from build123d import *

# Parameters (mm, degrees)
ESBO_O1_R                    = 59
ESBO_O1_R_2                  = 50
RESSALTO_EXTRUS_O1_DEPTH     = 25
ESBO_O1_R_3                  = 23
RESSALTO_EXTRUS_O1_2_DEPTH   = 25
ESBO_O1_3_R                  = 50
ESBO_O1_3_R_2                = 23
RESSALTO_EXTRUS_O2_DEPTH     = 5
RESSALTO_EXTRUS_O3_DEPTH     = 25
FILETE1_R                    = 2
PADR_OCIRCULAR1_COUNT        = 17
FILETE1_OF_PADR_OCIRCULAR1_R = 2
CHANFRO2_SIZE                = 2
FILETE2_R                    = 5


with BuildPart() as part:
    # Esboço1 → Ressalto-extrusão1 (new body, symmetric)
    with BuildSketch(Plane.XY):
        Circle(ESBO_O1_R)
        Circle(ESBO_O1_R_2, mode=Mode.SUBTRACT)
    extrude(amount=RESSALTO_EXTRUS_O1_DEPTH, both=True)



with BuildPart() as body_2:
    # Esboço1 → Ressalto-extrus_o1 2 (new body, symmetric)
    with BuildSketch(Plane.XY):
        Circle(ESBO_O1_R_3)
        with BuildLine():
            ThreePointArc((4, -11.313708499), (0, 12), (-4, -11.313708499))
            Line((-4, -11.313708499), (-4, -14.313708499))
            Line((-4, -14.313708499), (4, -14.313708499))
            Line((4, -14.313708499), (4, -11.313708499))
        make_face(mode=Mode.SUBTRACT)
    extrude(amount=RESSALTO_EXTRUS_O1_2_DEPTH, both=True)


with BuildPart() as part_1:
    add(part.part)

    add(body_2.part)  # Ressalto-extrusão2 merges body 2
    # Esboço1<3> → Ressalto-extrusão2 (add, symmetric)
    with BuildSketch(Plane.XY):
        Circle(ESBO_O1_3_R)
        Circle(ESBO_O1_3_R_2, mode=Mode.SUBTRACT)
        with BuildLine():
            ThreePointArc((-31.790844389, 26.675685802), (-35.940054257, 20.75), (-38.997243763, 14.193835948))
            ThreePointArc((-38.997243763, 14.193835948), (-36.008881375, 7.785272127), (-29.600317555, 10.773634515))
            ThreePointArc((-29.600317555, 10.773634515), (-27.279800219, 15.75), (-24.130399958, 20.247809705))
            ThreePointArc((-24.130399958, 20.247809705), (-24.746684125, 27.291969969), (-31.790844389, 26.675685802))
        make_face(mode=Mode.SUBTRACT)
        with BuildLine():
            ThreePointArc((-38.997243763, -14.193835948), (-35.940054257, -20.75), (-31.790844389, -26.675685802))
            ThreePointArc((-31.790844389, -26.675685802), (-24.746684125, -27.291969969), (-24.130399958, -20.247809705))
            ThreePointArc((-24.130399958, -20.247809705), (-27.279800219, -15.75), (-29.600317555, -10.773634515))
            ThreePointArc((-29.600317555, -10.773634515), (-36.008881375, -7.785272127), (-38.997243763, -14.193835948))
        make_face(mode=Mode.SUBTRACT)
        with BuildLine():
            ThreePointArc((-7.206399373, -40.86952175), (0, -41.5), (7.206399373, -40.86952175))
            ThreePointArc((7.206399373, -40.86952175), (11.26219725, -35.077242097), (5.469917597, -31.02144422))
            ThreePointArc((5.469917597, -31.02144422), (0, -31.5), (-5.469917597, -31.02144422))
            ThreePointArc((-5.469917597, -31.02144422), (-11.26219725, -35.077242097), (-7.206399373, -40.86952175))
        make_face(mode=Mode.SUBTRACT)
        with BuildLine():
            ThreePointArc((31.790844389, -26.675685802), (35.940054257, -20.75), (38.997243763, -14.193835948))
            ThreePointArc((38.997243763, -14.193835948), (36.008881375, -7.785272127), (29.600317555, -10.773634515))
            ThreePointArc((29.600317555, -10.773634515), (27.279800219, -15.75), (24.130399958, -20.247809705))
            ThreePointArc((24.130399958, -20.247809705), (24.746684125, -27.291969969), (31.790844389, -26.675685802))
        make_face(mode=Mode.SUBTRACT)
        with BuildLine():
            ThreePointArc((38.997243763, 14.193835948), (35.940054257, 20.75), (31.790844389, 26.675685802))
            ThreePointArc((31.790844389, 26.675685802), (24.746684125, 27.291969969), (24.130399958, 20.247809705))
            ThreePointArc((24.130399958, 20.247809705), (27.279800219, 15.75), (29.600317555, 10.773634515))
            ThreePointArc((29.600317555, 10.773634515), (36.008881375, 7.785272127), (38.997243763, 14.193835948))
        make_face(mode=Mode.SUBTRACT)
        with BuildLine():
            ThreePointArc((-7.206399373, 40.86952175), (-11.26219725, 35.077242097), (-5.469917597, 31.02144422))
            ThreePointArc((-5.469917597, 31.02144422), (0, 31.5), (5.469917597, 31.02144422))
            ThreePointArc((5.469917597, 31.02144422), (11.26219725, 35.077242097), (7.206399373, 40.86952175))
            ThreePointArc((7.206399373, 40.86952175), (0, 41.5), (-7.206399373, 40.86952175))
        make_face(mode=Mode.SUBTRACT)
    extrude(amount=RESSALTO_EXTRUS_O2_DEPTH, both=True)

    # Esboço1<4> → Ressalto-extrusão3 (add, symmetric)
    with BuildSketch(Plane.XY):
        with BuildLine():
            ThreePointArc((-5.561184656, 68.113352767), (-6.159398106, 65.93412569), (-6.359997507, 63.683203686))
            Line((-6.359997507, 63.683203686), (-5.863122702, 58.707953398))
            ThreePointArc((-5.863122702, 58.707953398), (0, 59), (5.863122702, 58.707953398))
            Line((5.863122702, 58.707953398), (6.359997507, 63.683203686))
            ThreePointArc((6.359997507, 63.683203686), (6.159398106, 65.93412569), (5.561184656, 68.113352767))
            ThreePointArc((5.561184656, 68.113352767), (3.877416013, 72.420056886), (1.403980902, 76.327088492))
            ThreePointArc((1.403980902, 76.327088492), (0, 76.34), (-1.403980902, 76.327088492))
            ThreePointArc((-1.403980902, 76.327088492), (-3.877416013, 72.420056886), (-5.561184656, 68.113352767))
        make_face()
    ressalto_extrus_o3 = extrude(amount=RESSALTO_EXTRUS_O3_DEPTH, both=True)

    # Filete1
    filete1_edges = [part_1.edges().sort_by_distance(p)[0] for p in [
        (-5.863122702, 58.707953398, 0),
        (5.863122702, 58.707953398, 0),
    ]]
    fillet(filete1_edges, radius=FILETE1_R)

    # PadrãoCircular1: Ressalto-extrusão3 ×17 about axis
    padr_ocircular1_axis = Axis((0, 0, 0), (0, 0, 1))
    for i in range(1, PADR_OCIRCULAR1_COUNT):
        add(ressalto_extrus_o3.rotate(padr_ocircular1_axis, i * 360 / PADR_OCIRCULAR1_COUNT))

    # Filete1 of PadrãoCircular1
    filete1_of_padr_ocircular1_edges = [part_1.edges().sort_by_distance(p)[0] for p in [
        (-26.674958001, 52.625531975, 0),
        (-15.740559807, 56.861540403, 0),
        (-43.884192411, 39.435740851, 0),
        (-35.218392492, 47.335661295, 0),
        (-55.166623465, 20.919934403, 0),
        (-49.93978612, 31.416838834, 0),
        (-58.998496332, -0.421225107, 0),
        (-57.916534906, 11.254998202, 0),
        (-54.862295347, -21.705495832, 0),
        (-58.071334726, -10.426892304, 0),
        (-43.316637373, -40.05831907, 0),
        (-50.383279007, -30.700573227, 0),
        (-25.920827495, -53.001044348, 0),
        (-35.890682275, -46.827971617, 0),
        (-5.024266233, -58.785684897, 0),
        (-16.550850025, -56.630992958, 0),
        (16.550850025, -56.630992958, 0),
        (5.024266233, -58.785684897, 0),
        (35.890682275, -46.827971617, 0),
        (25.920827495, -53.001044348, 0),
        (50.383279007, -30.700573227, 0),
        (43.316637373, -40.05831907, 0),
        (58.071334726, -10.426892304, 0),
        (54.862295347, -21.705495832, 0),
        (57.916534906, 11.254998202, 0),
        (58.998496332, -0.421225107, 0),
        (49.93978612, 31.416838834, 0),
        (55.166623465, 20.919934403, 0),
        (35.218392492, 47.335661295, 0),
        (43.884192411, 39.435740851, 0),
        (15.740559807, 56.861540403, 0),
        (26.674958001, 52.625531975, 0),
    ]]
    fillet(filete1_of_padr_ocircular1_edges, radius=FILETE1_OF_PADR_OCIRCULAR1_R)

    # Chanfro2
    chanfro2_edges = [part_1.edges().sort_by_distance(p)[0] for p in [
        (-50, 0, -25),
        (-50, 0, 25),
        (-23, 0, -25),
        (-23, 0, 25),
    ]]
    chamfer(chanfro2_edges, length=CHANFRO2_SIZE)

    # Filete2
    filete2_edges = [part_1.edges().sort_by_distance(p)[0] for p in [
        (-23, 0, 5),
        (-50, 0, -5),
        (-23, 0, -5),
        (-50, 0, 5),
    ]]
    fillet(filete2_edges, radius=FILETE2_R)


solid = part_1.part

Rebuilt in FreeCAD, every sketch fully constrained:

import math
import FreeCAD as App
import Part
import Sketcher
from FreeCAD import Vector
Q = App.Units.Quantity


def edges_at(feature, points):
    """Names of the edges that pass closest to the given points."""
    edges = feature.Shape.Edges
    near = lambda p: min(range(len(edges)), key=lambda i: edges[i].distToShape(Part.Vertex(*p))[0])
    return sorted({f"Edge{near(p) + 1}" for p in points})

doc = App.newDocument("Part")
params = doc.addObject("Spreadsheet::Sheet", "Params")
for row, (alias, value) in enumerate([
    ("sketch1_diameter", "118 mm"),
    ("sketch1_diameter2", "100 mm"),
    ("pad1_length", "50 mm"),
    ("sketch2_diameter", "46 mm"),
    ("sketch2_radius", "12 mm"),
    ("sketch2_width", "8 mm"),
    ("sketch2_height", "3 mm"),
    ("pad2_length", "50 mm"),
    ("sketch3_diameter", "100 mm"),
    ("sketch3_diameter2", "46 mm"),
    ("sketch3_radius", "5 mm"),
    ("sketch3_radius2", "41.5 mm"),
    ("pad3_length", "10 mm"),
    ("sketch4_radius", "59 mm"),
    ("sketch4_radius2", "12.64 mm"),
    ("sketch4_radius3", "24.16 mm"),
    ("sketch4_radius4", "76.340002 mm"),
    ("sketch4_length", "5 mm"),
    ("pad4_length", "50 mm"),
    ("fillet_radius", "2 mm"),
    ("fillet2_radius", "2 mm"),
    ("chamfer_size", "2 mm"),
    ("fillet3_radius", "5 mm"),
], start=1):
    params.set(f"A{row}", alias)
    params.set(f"B{row}", "=" + value)
    params.setAlias(f"B{row}", alias)

body = doc.addObject("PartDesign::Body", "Body")

sketch1 = doc.addObject("Sketcher::SketchObject", "Sketch")
body.addObject(sketch1)
sketch1.AttachmentSupport = (doc.XY_Plane, [""])
sketch1.MapMode = "FlatFace"
sketch1.addGeometry(Part.Circle(Vector(0, 0, 0), Vector(0, 0, 1), 59), False)
sketch1.addGeometry(Part.Circle(Vector(0, 0, 0), Vector(0, 0, 1), 50), False)
sketch1.addConstraint(Sketcher.Constraint("Coincident", 0, 3, -1, 1))
sketch1.addConstraint(Sketcher.Constraint("Coincident", 1, 3, -1, 1))
sketch1.addConstraint(Sketcher.Constraint("Diameter", 0, Q("118 mm")))
sketch1.addConstraint(Sketcher.Constraint("Diameter", 1, Q("100 mm")))
sketch1.setExpression("Constraints[2]", "Params.sketch1_diameter")
sketch1.setExpression("Constraints[3]", "Params.sketch1_diameter2")
pad1 = doc.addObject("PartDesign::Pad", "Pad")
body.addObject(pad1)
pad1.Profile = sketch1
pad1.setExpression("Length", "Params.pad1_length")
pad1.Midplane = True
body2 = doc.addObject("PartDesign::Body", "Body001")

sketch2 = doc.addObject("Sketcher::SketchObject", "Sketch001")
body2.addObject(sketch2)
sketch2.AttachmentSupport = (doc.getObject("XY_Plane001"), [""])
sketch2.MapMode = "FlatFace"
sketch2.addGeometry(Part.Circle(Vector(0, 0, 0), Vector(0, 0, 1), 23), False)
sketch2.addGeometry(Part.ArcOfCircle(Part.Circle(Vector(0, 0, 0), Vector(0, 0, 1), 12), math.radians(-71), math.radians(251)), False)
sketch2.addGeometry(Part.LineSegment(Vector(4, -11.3, 0), Vector(4, -14.3, 0)), False)
sketch2.addGeometry(Part.LineSegment(Vector(4, -14.3, 0), Vector(-4, -14.3, 0)), False)
sketch2.addGeometry(Part.LineSegment(Vector(-4, -14.3, 0), Vector(-4, -11.3, 0)), False)
sketch2.addConstraint(Sketcher.Constraint("Coincident", 1, 1, 2, 1))
sketch2.addConstraint(Sketcher.Constraint("Coincident", 2, 2, 3, 1))
sketch2.addConstraint(Sketcher.Constraint("Coincident", 3, 2, 4, 1))
sketch2.addConstraint(Sketcher.Constraint("Coincident", 4, 2, 1, 2))
sketch2.addConstraint(Sketcher.Constraint("Vertical", 2))
sketch2.addConstraint(Sketcher.Constraint("Horizontal", 3))
sketch2.addConstraint(Sketcher.Constraint("Vertical", 4))
sketch2.addConstraint(Sketcher.Constraint("Coincident", 0, 3, -1, 1))
sketch2.addConstraint(Sketcher.Constraint("Coincident", 1, 3, -1, 1))
sketch2.addConstraint(Sketcher.Constraint("Horizontal", 1, 1, 4, 2))
sketch2.addConstraint(Sketcher.Constraint("Diameter", 0, Q("46 mm")))
sketch2.addConstraint(Sketcher.Constraint("Radius", 1, Q("12 mm")))
sketch2.addConstraint(Sketcher.Constraint("DistanceX", 3, 2, 3, 1, Q("8 mm")))
sketch2.addConstraint(Sketcher.Constraint("DistanceY", 2, 2, 2, 1, Q("3 mm")))
sketch2.setExpression("Constraints[10]", "Params.sketch2_diameter")
sketch2.setExpression("Constraints[11]", "Params.sketch2_radius")
sketch2.setExpression("Constraints[12]", "Params.sketch2_width")
sketch2.setExpression("Constraints[13]", "Params.sketch2_height")
pad2 = doc.addObject("PartDesign::Pad", "Pad001")
body2.addObject(pad2)
pad2.Profile = sketch2
pad2.setExpression("Length", "Params.pad2_length")
pad2.Midplane = True
body.AllowCompound = True
doc.recompute()

boolean = doc.addObject("PartDesign::Boolean", "Boolean")
body.addObject(boolean)
boolean.Type = "Fuse"
boolean.addObjects([body2])

sketch3 = doc.addObject("Sketcher::SketchObject", "Sketch002")
body.addObject(sketch3)
sketch3.AttachmentSupport = (doc.XY_Plane, [""])
sketch3.MapMode = "FlatFace"
sketch3.addGeometry(Part.Circle(Vector(0, 0, 0), Vector(0, 0, 1), 50), False)
sketch3.addGeometry(Part.ArcOfCircle(Part.Circle(Vector(0, 0, 0), Vector(0, 0, 1), 42), math.radians(-160), math.radians(-140)), False)
sketch3.addGeometry(Part.ArcOfCircle(Part.Circle(Vector(-34, -12, 0), Vector(0, 0, 1), 5), math.radians(20), math.radians(200)), False)
sketch3.addGeometry(Part.ArcOfCircle(Part.Circle(Vector(0, 0, 0), Vector(0, 0, 1), 32), math.radians(-160), math.radians(-140)), False)
sketch3.addGeometry(Part.ArcOfCircle(Part.Circle(Vector(-28, -23, 0), Vector(0, 0, 1), 5), math.radians(-140), math.radians(40)), False)
sketch3.addGeometry(Part.ArcOfCircle(Part.Circle(Vector(0, 0, 0), Vector(0, 0, 1), 41), math.radians(-100), math.radians(-80)), False)
sketch3.addGeometry(Part.ArcOfCircle(Part.Circle(Vector(-6, -36, 0), Vector(0, 0, 1), 5), math.radians(80), math.radians(260)), False)
sketch3.addGeometry(Part.ArcOfCircle(Part.Circle(Vector(0, 0, 0), Vector(0, 0, 1), 32), math.radians(-100), math.radians(-80)), False)
sketch3.addGeometry(Part.ArcOfCircle(Part.Circle(Vector(6, -36, 0), Vector(0, 0, 1), 5), math.radians(-80), math.radians(100)), False)
sketch3.addGeometry(Part.Circle(Vector(0, 0, 0), Vector(0, 0, 1), 23), False)
sketch3.addGeometry(Part.ArcOfCircle(Part.Circle(Vector(0, 0, 0), Vector(0, 0, 1), 42), math.radians(-40), math.radians(-20)), False)
sketch3.addGeometry(Part.ArcOfCircle(Part.Circle(Vector(28, -23, 0), Vector(0, 0, 1), 5), math.radians(140), math.radians(320)), False)
sketch3.addGeometry(Part.ArcOfCircle(Part.Circle(Vector(0, 0, 0), Vector(0, 0, 1), 32), math.radians(-40), math.radians(-20)), False)
sketch3.addGeometry(Part.ArcOfCircle(Part.Circle(Vector(34, -12, 0), Vector(0, 0, 1), 5), math.radians(-20), math.radians(160)), False)
sketch3.addGeometry(Part.ArcOfCircle(Part.Circle(Vector(0, 0, 0), Vector(0, 0, 1), 42), math.radians(140), math.radians(160)), False)
sketch3.addGeometry(Part.ArcOfCircle(Part.Circle(Vector(-28, 23, 0), Vector(0, 0, 1), 5), math.radians(-40), math.radians(140)), False)
sketch3.addGeometry(Part.ArcOfCircle(Part.Circle(Vector(0, 0, 0), Vector(0, 0, 1), 32), math.radians(140), math.radians(160)), False)
sketch3.addGeometry(Part.ArcOfCircle(Part.Circle(Vector(-34, 12, 0), Vector(0, 0, 1), 5), math.radians(160), math.radians(340)), False)
sketch3.addGeometry(Part.ArcOfCircle(Part.Circle(Vector(0, 0, 0), Vector(0, 0, 1), 42), math.radians(20), math.radians(40)), False)
sketch3.addGeometry(Part.ArcOfCircle(Part.Circle(Vector(34, 12, 0), Vector(0, 0, 1), 5), math.radians(-160), math.radians(20)), False)
sketch3.addGeometry(Part.ArcOfCircle(Part.Circle(Vector(0, 0, 0), Vector(0, 0, 1), 32), math.radians(20), math.radians(40)), False)
sketch3.addGeometry(Part.ArcOfCircle(Part.Circle(Vector(28, 23, 0), Vector(0, 0, 1), 5), math.radians(40), math.radians(220)), False)
sketch3.addGeometry(Part.ArcOfCircle(Part.Circle(Vector(-6, 36, 0), Vector(0, 0, 1), 5), math.radians(100), math.radians(280)), False)
sketch3.addGeometry(Part.ArcOfCircle(Part.Circle(Vector(0, 0, 0), Vector(0, 0, 1), 41), math.radians(80), math.radians(100)), False)
sketch3.addGeometry(Part.ArcOfCircle(Part.Circle(Vector(6, 36, 0), Vector(0, 0, 1), 5), math.radians(-100), math.radians(80)), False)
sketch3.addGeometry(Part.ArcOfCircle(Part.Circle(Vector(0, 0, 0), Vector(0, 0, 1), 32), math.radians(80), math.radians(100)), False)
sketch3.addConstraint(Sketcher.Constraint("Tangent", 1, 1, 2, 2))
sketch3.addConstraint(Sketcher.Constraint("Tangent", 2, 1, 3, 1))
sketch3.addConstraint(Sketcher.Constraint("Tangent", 3, 2, 4, 2))
sketch3.addConstraint(Sketcher.Constraint("Tangent", 4, 1, 1, 2))
sketch3.addConstraint(Sketcher.Constraint("Tangent", 5, 1, 6, 2))
sketch3.addConstraint(Sketcher.Constraint("Tangent", 6, 1, 7, 1))
sketch3.addConstraint(Sketcher.Constraint("Tangent", 7, 2, 8, 2))
sketch3.addConstraint(Sketcher.Constraint("Tangent", 8, 1, 5, 2))
sketch3.addConstraint(Sketcher.Constraint("Tangent", 10, 1, 11, 2))
sketch3.addConstraint(Sketcher.Constraint("Tangent", 11, 1, 12, 1))
sketch3.addConstraint(Sketcher.Constraint("Tangent", 12, 2, 13, 2))
sketch3.addConstraint(Sketcher.Constraint("Tangent", 13, 1, 10, 2))
sketch3.addConstraint(Sketcher.Constraint("Tangent", 14, 1, 15, 2))
sketch3.addConstraint(Sketcher.Constraint("Tangent", 15, 1, 16, 1))
sketch3.addConstraint(Sketcher.Constraint("Tangent", 16, 2, 17, 2))
sketch3.addConstraint(Sketcher.Constraint("Tangent", 17, 1, 14, 2))
sketch3.addConstraint(Sketcher.Constraint("Tangent", 18, 1, 19, 2))
sketch3.addConstraint(Sketcher.Constraint("Tangent", 19, 1, 20, 1))
sketch3.addConstraint(Sketcher.Constraint("Tangent", 20, 2, 21, 2))
sketch3.addConstraint(Sketcher.Constraint("Tangent", 21, 1, 18, 2))
sketch3.addConstraint(Sketcher.Constraint("Tangent", 22, 1, 23, 2))
sketch3.addConstraint(Sketcher.Constraint("Tangent", 23, 1, 24, 2))
sketch3.addConstraint(Sketcher.Constraint("Tangent", 24, 1, 25, 1))
sketch3.addConstraint(Sketcher.Constraint("Tangent", 25, 2, 22, 2))
sketch3.addConstraint(Sketcher.Constraint("Coincident", 0, 3, -1, 1))
sketch3.addConstraint(Sketcher.Constraint("Coincident", 1, 3, -1, 1))
sketch3.addConstraint(Sketcher.Constraint("Coincident", 3, 3, -1, 1))
sketch3.addConstraint(Sketcher.Constraint("Coincident", 5, 3, -1, 1))
sketch3.addConstraint(Sketcher.Constraint("Coincident", 7, 3, -1, 1))
sketch3.addConstraint(Sketcher.Constraint("Coincident", 9, 3, -1, 1))
sketch3.addConstraint(Sketcher.Constraint("Coincident", 10, 3, -1, 1))
sketch3.addConstraint(Sketcher.Constraint("Coincident", 12, 3, -1, 1))
sketch3.addConstraint(Sketcher.Constraint("Coincident", 14, 3, -1, 1))
sketch3.addConstraint(Sketcher.Constraint("Coincident", 16, 3, -1, 1))
sketch3.addConstraint(Sketcher.Constraint("Coincident", 18, 3, -1, 1))
sketch3.addConstraint(Sketcher.Constraint("Coincident", 20, 3, -1, 1))
sketch3.addConstraint(Sketcher.Constraint("Coincident", 23, 3, -1, 1))
sketch3.addConstraint(Sketcher.Constraint("Coincident", 25, 3, -1, 1))
sketch3.addConstraint(Sketcher.Constraint("Equal", 1, 5))
sketch3.addConstraint(Sketcher.Constraint("Equal", 4, 6))
sketch3.addConstraint(Sketcher.Constraint("Equal", 5, 10))
sketch3.addConstraint(Sketcher.Constraint("Equal", 8, 11))
sketch3.addConstraint(Sketcher.Constraint("Equal", 10, 14))
sketch3.addConstraint(Sketcher.Constraint("Equal", 13, 15))
sketch3.addConstraint(Sketcher.Constraint("Equal", 14, 18))
sketch3.addConstraint(Sketcher.Constraint("Equal", 17, 19))
sketch3.addConstraint(Sketcher.Constraint("Equal", 21, 22))
sketch3.addConstraint(Sketcher.Constraint("Equal", 18, 23))
sketch3.addConstraint(Sketcher.Constraint("Horizontal", 6, 3, 8, 3))
sketch3.addConstraint(Sketcher.Constraint("Horizontal", 4, 3, 11, 3))
sketch3.addConstraint(Sketcher.Constraint("Horizontal", 2, 3, 13, 3))
sketch3.addConstraint(Sketcher.Constraint("Horizontal", 17, 3, 19, 3))
sketch3.addConstraint(Sketcher.Constraint("Horizontal", 15, 3, 21, 3))
sketch3.addConstraint(Sketcher.Constraint("Horizontal", 22, 3, 24, 3))
sketch3.addConstraint(Sketcher.Constraint("Vertical", 4, 3, 15, 3))
sketch3.addConstraint(Sketcher.Constraint("Vertical", 2, 3, 17, 3))
sketch3.addConstraint(Sketcher.Constraint("Vertical", 6, 3, 22, 3))
sketch3.addConstraint(Sketcher.Constraint("Diameter", 0, Q("100 mm")))
sketch3.addConstraint(Sketcher.Constraint("Diameter", 9, Q("46 mm")))
sketch3.addConstraint(Sketcher.Constraint("Radius", 2, Q("5 mm")))
sketch3.addConstraint(Sketcher.Constraint("Radius", 1, Q("41.5 mm")))
sketch3.addConstraint(Sketcher.Constraint("DistanceX", 3, 2, 5, 1, Q("16.924001 mm")))
sketch3.addConstraint(Sketcher.Constraint("DistanceX", 3, 2, -1, 1, Q("24.1304 mm")))
sketch3.addConstraint(Sketcher.Constraint("DistanceY", 2, 3, 2, 1, Q("1.710101 mm")))
sketch3.setExpression("Constraints[57]", "Params.sketch3_diameter")
sketch3.setExpression("Constraints[58]", "Params.sketch3_diameter2")
sketch3.setExpression("Constraints[59]", "Params.sketch3_radius")
sketch3.setExpression("Constraints[60]", "Params.sketch3_radius2")
pad3 = doc.addObject("PartDesign::Pad", "Pad002")
body.addObject(pad3)
pad3.Profile = sketch3
pad3.setExpression("Length", "Params.pad3_length")
pad3.Midplane = True

sketch4 = doc.addObject("Sketcher::SketchObject", "Sketch003")
body.addObject(sketch4)
sketch4.AttachmentSupport = (doc.XY_Plane, [""])
sketch4.MapMode = "FlatFace"
sketch4.addGeometry(Part.ArcOfCircle(Part.Circle(Vector(6.3, 63.7, 0), Vector(0, 0, 1), 12.6), math.radians(160), math.radians(180)), False)
sketch4.addGeometry(Part.LineSegment(Vector(-6.4, 63.7, 0), Vector(-5.9, 58.7, 0)), False)
sketch4.addGeometry(Part.ArcOfCircle(Part.Circle(Vector(0, 0, 0), Vector(0, 0, 1), 59), math.radians(84.3), math.radians(95.7)), False)
sketch4.addGeometry(Part.LineSegment(Vector(5.9, 58.7, 0), Vector(6.4, 63.7, 0)), False)
sketch4.addGeometry(Part.ArcOfCircle(Part.Circle(Vector(-6.3, 63.7, 0), Vector(0, 0, 1), 12.6), math.radians(0), math.radians(20)), False)
sketch4.addGeometry(Part.ArcOfCircle(Part.Circle(Vector(-17.7, 61.5, 0), Vector(0, 0, 1), 24.2), math.radians(16), math.radians(38)), False)
sketch4.addGeometry(Part.ArcOfCircle(Part.Circle(Vector(0, 0, 0), Vector(0, 0, 1), 76.3), math.radians(88.95), math.radians(91.05)), False)
sketch4.addGeometry(Part.ArcOfCircle(Part.Circle(Vector(17.7, 61.5, 0), Vector(0, 0, 1), 24.2), math.radians(142), math.radians(164)), False)
sketch4.addConstraint(Sketcher.Constraint("Coincident", 0, 2, 1, 1))
sketch4.addConstraint(Sketcher.Constraint("Coincident", 1, 2, 2, 2))
sketch4.addConstraint(Sketcher.Constraint("Coincident", 2, 1, 3, 1))
sketch4.addConstraint(Sketcher.Constraint("Coincident", 3, 2, 4, 1))
sketch4.addConstraint(Sketcher.Constraint("Coincident", 4, 2, 5, 1))
sketch4.addConstraint(Sketcher.Constraint("Coincident", 5, 2, 6, 1))
sketch4.addConstraint(Sketcher.Constraint("Coincident", 6, 2, 7, 1))
sketch4.addConstraint(Sketcher.Constraint("Coincident", 7, 2, 0, 1))
sketch4.addConstraint(Sketcher.Constraint("Coincident", 2, 3, -1, 1))
sketch4.addConstraint(Sketcher.Constraint("Coincident", 6, 3, -1, 1))
sketch4.addConstraint(Sketcher.Constraint("Equal", 0, 4))
sketch4.addConstraint(Sketcher.Constraint("Equal", 5, 7))
sketch4.addConstraint(Sketcher.Constraint("Symmetric", 0, 3, 4, 3, -2))
sketch4.addConstraint(Sketcher.Constraint("Symmetric", 5, 3, 7, 3, -2))
sketch4.addConstraint(Sketcher.Constraint("Horizontal", 1, 2, 2, 1))
sketch4.addConstraint(Sketcher.Constraint("Horizontal", 0, 2, 3, 2))
sketch4.addConstraint(Sketcher.Constraint("Radius", 2, Q("59 mm")))
sketch4.addConstraint(Sketcher.Constraint("Radius", 0, Q("12.64 mm")))
sketch4.addConstraint(Sketcher.Constraint("Radius", 5, Q("24.16 mm")))
sketch4.addConstraint(Sketcher.Constraint("Radius", 6, Q("76.340002 mm")))
sketch4.addConstraint(Sketcher.Constraint("Distance", 1, Q("5 mm")))
sketch4.addConstraint(Sketcher.Constraint("DistanceX", -1, 1, 0, 3, Q("6.28 mm")))
sketch4.addConstraint(Sketcher.Constraint("DistanceY", 2, 1, 4, 2, Q("9.405399 mm")))
sketch4.addConstraint(Sketcher.Constraint("DistanceX", -1, 1, 5, 2, Q("1.403981 mm")))
sketch4.addConstraint(Sketcher.Constraint("DistanceY", 5, 3, 4, 3, Q("2.181318 mm")))
sketch4.addConstraint(Sketcher.Constraint("DistanceX", 5, 3, 7, 3, Q("35.357691 mm")))
sketch4.setExpression("Constraints[16]", "Params.sketch4_radius")
sketch4.setExpression("Constraints[17]", "Params.sketch4_radius2")
sketch4.setExpression("Constraints[18]", "Params.sketch4_radius3")
sketch4.setExpression("Constraints[19]", "Params.sketch4_radius4")
sketch4.setExpression("Constraints[20]", "Params.sketch4_length")
pad4 = doc.addObject("PartDesign::Pad", "Pad003")
body.addObject(pad4)
pad4.Profile = sketch4
pad4.setExpression("Length", "Params.pad4_length")
pad4.Midplane = True
doc.recompute()

fillet = doc.addObject("PartDesign::Fillet", "Fillet")
body.addObject(fillet)
fillet.Base = (pad4, edges_at(pad4, [(-5.863, 58.708, 0), (5.863, 58.708, 0)]))
fillet.setExpression("Radius", "Params.fillet_radius")
doc.recompute()

polarpattern = doc.addObject("PartDesign::PolarPattern", "PolarPattern")
body.addObject(polarpattern)
polarpattern.Originals = [pad4]
polarpattern.Axis = (doc.Z_Axis, [""])
polarpattern.Angle = 360
polarpattern.Occurrences = 17
body.Tip = polarpattern
doc.recompute()

fillet2 = doc.addObject("PartDesign::Fillet", "Fillet001")
body.addObject(fillet2)
fillet2.Base = (polarpattern, edges_at(polarpattern, [
    (-26.675, 52.626, 0),
    (-15.741, 56.862, 0),
    (-43.884, 39.436, 0),
    (-35.218, 47.336, 0),
    (-55.167, 20.92, 0),
    (-49.94, 31.417, 0),
    (-58.998, -0.421, 0),
    (-57.917, 11.255, 0),
    (-54.862, -21.705, 0),
    (-58.071, -10.427, 0),
    (-43.317, -40.058, 0),
    (-50.383, -30.701, 0),
    (-25.921, -53.001, 0),
    (-35.891, -46.828, 0),
    (-5.024, -58.786, 0),
    (-16.551, -56.631, 0),
    (16.551, -56.631, 0),
    (5.024, -58.786, 0),
    (35.891, -46.828, 0),
    (25.921, -53.001, 0),
    (50.383, -30.701, 0),
    (43.317, -40.058, 0),
    (58.071, -10.427, 0),
    (54.862, -21.705, 0),
    (57.917, 11.255, 0),
    (58.998, -0.421, 0),
    (49.94, 31.417, 0),
    (55.167, 20.92, 0),
    (35.218, 47.336, 0),
    (43.884, 39.436, 0),
    (15.741, 56.862, 0),
    (26.675, 52.626, 0),
]))
fillet2.setExpression("Radius", "Params.fillet2_radius")
doc.recompute()

chamfer = doc.addObject("PartDesign::Chamfer", "Chamfer")
body.addObject(chamfer)
chamfer.Base = (fillet2, edges_at(fillet2, [
    (-50, 0, -25),
    (-50, 0, 25),
    (-23, 0, -25),
    (-23, 0, 25),
]))
chamfer.setExpression("Size", "Params.chamfer_size")
doc.recompute()

fillet3 = doc.addObject("PartDesign::Fillet", "Fillet002")
body.addObject(fillet3)
fillet3.Base = (chamfer, edges_at(chamfer, [
    (-23, 0, 5),
    (-50, 0, -5),
    (-23, 0, -5),
    (-50, 0, 5),
]))
fillet3.setExpression("Radius", "Params.fillet3_radius")

doc.recompute()
